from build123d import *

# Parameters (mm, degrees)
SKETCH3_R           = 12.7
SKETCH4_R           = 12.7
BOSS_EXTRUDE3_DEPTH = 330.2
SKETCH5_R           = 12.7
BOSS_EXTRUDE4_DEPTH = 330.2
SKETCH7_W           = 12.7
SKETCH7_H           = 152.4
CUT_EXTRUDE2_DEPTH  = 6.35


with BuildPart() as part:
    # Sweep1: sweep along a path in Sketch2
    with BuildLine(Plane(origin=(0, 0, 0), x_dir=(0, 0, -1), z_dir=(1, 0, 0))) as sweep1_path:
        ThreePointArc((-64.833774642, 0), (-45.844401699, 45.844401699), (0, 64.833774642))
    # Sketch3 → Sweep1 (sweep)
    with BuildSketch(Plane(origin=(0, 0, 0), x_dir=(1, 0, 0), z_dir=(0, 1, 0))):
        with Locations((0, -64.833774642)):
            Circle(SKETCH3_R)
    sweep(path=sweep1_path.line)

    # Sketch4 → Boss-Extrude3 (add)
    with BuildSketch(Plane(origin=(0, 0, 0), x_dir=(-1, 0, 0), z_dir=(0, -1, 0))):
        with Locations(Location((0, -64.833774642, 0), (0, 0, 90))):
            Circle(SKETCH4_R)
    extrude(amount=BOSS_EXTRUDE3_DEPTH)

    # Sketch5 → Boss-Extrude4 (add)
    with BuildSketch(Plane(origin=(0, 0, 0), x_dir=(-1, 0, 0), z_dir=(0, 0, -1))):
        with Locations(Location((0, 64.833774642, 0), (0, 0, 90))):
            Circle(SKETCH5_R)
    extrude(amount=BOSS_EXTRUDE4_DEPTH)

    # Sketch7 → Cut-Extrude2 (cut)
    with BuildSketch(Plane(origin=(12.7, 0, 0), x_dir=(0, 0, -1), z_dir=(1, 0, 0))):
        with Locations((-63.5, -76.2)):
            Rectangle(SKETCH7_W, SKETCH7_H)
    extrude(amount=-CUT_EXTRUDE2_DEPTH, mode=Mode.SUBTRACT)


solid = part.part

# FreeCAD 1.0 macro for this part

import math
import FreeCAD as App
import Part
import Sketcher

V = App.Vector
Q = App.Units.Quantity

doc = App.newDocument("Part")
body = doc.addObject("PartDesign::Body", "Body")

# Sketch on XZ plane
sketch1 = body.newObject("Sketcher::SketchObject", "Sketch")
sketch1.AttachmentSupport = (doc.getObject("XZ_Plane"), [""])
sketch1.MapMode = "FlatFace"
sketch1.addGeometry(Part.Circle(V(0, 65, 0), V(0, 0, 1), 13), False)
sketch1.addConstraint(Sketcher.Constraint("PointOnObject", 0, 3, -2))
sketch1.addConstraint(Sketcher.Constraint("Diameter", 0, Q("1 in")))
sketch1.addConstraint(Sketcher.Constraint("DistanceY", -1, 1, 0, 3, 64.833775))

# Sketch on YZ plane
sketch2 = body.newObject("Sketcher::SketchObject", "Sketch001")
sketch2.AttachmentSupport = (doc.getObject("YZ_Plane"), [""])
sketch2.MapMode = "FlatFace"
sketch2.addGeometry(Part.ArcOfCircle(Part.Circle(V(0, 0, 0), V(0, 0, 1), 65), math.radians(0), math.radians(90)), False)
sketch2.addConstraint(Sketcher.Constraint("Coincident", 0, 3, -1, 1))
sketch2.addConstraint(Sketcher.Constraint("PointOnObject", 0, 1, -1))
sketch2.addConstraint(Sketcher.Constraint("PointOnObject", 0, 2, -2))
sketch2.addConstraint(Sketcher.Constraint("Radius", 0, 64.833775))
doc.recompute()

additivepipe = body.newObject("PartDesign::AdditivePipe", "AdditivePipe")
additivepipe.Profile = sketch1
additivepipe.Spine = (sketch2, ["Edge1"])

# Sketch on XZ plane
sketch3 = body.newObject("Sketcher::SketchObject", "Sketch002")
sketch3.AttachmentSupport = (doc.getObject("XZ_Plane"), [""])
sketch3.MapMode = "FlatFace"
sketch3.addGeometry(Part.Circle(V(0, 65, 0), V(0, 0, 1), 13), False)
sketch3.addConstraint(Sketcher.Constraint("PointOnObject", 0, 3, -2))
sketch3.addConstraint(Sketcher.Constraint("Diameter", 0, Q("1 in")))
sketch3.addConstraint(Sketcher.Constraint("DistanceY", -1, 1, 0, 3, 64.833775))
pad1 = body.newObject("PartDesign::Pad", "Pad")
pad1.Profile = sketch3
pad1.Length = Q("13 in")

# Sketch on XY plane
sketch4 = body.newObject("Sketcher::SketchObject", "Sketch003")
sketch4.AttachmentSupport = (doc.getObject("XY_Plane"), [""])
sketch4.MapMode = "FlatFace"
sketch4.addGeometry(Part.Circle(V(0, 65, 0), V(0, 0, 1), 13), False)
sketch4.addConstraint(Sketcher.Constraint("PointOnObject", 0, 3, -2))
sketch4.addConstraint(Sketcher.Constraint("Diameter", 0, Q("1 in")))
sketch4.addConstraint(Sketcher.Constraint("DistanceY", -1, 1, 0, 3, 64.833775))
pad2 = body.newObject("PartDesign::Pad", "Pad001")
pad2.Profile = sketch4
pad2.Length = Q("13 in")
pad2.Reversed = True

# Sketch on YZ plane
sketch5 = body.newObject("Sketcher::SketchObject", "Sketch004")
sketch5.AttachmentSupport = (doc.getObject("YZ_Plane"), [""])
sketch5.MapMode = "FlatFace"
sketch5.AttachmentOffset = App.Placement(V(0, 0, 0.5 * 25.4), App.Rotation())
sketch5.addGeometry(Part.LineSegment(V(0, 70, 0), V(-152, 70, 0)), False)
sketch5.addGeometry(Part.LineSegment(V(-152, 70, 0), V(-152, 57, 0)), False)
sketch5.addGeometry(Part.LineSegment(V(-152, 57, 0), V(0, 57, 0)), False)
sketch5.addGeometry(Part.LineSegment(V(0, 57, 0), V(0, 70, 0)), False)
sketch5.addConstraint(Sketcher.Constraint("Coincident", 0, 2, 1, 1))
sketch5.addConstraint(Sketcher.Constraint("Coincident", 1, 2, 2, 1))
sketch5.addConstraint(Sketcher.Constraint("Coincident", 2, 2, 3, 1))
sketch5.addConstraint(Sketcher.Constraint("Coincident", 3, 2, 0, 1))
sketch5.addConstraint(Sketcher.Constraint("Horizontal", 0))
sketch5.addConstraint(Sketcher.Constraint("Vertical", 1))
sketch5.addConstraint(Sketcher.Constraint("Horizontal", 2))
sketch5.addConstraint(Sketcher.Constraint("Vertical", 3))
sketch5.addConstraint(Sketcher.Constraint("PointOnObject", 2, 2, -2))
sketch5.addConstraint(Sketcher.Constraint("DistanceX", 0, 2, 0, 1, Q("6 in")))
sketch5.addConstraint(Sketcher.Constraint("DistanceY", 1, 2, 1, 1, Q("0.5 in")))
sketch5.addConstraint(Sketcher.Constraint("DistanceY", -1, 1, 0, 2, Q("2.75 in")))
pocket1 = body.newObject("PartDesign::Pocket", "Pocket")
pocket1.Profile = sketch5
pocket1.Length = Q("0.25 in")

doc.recompute()
